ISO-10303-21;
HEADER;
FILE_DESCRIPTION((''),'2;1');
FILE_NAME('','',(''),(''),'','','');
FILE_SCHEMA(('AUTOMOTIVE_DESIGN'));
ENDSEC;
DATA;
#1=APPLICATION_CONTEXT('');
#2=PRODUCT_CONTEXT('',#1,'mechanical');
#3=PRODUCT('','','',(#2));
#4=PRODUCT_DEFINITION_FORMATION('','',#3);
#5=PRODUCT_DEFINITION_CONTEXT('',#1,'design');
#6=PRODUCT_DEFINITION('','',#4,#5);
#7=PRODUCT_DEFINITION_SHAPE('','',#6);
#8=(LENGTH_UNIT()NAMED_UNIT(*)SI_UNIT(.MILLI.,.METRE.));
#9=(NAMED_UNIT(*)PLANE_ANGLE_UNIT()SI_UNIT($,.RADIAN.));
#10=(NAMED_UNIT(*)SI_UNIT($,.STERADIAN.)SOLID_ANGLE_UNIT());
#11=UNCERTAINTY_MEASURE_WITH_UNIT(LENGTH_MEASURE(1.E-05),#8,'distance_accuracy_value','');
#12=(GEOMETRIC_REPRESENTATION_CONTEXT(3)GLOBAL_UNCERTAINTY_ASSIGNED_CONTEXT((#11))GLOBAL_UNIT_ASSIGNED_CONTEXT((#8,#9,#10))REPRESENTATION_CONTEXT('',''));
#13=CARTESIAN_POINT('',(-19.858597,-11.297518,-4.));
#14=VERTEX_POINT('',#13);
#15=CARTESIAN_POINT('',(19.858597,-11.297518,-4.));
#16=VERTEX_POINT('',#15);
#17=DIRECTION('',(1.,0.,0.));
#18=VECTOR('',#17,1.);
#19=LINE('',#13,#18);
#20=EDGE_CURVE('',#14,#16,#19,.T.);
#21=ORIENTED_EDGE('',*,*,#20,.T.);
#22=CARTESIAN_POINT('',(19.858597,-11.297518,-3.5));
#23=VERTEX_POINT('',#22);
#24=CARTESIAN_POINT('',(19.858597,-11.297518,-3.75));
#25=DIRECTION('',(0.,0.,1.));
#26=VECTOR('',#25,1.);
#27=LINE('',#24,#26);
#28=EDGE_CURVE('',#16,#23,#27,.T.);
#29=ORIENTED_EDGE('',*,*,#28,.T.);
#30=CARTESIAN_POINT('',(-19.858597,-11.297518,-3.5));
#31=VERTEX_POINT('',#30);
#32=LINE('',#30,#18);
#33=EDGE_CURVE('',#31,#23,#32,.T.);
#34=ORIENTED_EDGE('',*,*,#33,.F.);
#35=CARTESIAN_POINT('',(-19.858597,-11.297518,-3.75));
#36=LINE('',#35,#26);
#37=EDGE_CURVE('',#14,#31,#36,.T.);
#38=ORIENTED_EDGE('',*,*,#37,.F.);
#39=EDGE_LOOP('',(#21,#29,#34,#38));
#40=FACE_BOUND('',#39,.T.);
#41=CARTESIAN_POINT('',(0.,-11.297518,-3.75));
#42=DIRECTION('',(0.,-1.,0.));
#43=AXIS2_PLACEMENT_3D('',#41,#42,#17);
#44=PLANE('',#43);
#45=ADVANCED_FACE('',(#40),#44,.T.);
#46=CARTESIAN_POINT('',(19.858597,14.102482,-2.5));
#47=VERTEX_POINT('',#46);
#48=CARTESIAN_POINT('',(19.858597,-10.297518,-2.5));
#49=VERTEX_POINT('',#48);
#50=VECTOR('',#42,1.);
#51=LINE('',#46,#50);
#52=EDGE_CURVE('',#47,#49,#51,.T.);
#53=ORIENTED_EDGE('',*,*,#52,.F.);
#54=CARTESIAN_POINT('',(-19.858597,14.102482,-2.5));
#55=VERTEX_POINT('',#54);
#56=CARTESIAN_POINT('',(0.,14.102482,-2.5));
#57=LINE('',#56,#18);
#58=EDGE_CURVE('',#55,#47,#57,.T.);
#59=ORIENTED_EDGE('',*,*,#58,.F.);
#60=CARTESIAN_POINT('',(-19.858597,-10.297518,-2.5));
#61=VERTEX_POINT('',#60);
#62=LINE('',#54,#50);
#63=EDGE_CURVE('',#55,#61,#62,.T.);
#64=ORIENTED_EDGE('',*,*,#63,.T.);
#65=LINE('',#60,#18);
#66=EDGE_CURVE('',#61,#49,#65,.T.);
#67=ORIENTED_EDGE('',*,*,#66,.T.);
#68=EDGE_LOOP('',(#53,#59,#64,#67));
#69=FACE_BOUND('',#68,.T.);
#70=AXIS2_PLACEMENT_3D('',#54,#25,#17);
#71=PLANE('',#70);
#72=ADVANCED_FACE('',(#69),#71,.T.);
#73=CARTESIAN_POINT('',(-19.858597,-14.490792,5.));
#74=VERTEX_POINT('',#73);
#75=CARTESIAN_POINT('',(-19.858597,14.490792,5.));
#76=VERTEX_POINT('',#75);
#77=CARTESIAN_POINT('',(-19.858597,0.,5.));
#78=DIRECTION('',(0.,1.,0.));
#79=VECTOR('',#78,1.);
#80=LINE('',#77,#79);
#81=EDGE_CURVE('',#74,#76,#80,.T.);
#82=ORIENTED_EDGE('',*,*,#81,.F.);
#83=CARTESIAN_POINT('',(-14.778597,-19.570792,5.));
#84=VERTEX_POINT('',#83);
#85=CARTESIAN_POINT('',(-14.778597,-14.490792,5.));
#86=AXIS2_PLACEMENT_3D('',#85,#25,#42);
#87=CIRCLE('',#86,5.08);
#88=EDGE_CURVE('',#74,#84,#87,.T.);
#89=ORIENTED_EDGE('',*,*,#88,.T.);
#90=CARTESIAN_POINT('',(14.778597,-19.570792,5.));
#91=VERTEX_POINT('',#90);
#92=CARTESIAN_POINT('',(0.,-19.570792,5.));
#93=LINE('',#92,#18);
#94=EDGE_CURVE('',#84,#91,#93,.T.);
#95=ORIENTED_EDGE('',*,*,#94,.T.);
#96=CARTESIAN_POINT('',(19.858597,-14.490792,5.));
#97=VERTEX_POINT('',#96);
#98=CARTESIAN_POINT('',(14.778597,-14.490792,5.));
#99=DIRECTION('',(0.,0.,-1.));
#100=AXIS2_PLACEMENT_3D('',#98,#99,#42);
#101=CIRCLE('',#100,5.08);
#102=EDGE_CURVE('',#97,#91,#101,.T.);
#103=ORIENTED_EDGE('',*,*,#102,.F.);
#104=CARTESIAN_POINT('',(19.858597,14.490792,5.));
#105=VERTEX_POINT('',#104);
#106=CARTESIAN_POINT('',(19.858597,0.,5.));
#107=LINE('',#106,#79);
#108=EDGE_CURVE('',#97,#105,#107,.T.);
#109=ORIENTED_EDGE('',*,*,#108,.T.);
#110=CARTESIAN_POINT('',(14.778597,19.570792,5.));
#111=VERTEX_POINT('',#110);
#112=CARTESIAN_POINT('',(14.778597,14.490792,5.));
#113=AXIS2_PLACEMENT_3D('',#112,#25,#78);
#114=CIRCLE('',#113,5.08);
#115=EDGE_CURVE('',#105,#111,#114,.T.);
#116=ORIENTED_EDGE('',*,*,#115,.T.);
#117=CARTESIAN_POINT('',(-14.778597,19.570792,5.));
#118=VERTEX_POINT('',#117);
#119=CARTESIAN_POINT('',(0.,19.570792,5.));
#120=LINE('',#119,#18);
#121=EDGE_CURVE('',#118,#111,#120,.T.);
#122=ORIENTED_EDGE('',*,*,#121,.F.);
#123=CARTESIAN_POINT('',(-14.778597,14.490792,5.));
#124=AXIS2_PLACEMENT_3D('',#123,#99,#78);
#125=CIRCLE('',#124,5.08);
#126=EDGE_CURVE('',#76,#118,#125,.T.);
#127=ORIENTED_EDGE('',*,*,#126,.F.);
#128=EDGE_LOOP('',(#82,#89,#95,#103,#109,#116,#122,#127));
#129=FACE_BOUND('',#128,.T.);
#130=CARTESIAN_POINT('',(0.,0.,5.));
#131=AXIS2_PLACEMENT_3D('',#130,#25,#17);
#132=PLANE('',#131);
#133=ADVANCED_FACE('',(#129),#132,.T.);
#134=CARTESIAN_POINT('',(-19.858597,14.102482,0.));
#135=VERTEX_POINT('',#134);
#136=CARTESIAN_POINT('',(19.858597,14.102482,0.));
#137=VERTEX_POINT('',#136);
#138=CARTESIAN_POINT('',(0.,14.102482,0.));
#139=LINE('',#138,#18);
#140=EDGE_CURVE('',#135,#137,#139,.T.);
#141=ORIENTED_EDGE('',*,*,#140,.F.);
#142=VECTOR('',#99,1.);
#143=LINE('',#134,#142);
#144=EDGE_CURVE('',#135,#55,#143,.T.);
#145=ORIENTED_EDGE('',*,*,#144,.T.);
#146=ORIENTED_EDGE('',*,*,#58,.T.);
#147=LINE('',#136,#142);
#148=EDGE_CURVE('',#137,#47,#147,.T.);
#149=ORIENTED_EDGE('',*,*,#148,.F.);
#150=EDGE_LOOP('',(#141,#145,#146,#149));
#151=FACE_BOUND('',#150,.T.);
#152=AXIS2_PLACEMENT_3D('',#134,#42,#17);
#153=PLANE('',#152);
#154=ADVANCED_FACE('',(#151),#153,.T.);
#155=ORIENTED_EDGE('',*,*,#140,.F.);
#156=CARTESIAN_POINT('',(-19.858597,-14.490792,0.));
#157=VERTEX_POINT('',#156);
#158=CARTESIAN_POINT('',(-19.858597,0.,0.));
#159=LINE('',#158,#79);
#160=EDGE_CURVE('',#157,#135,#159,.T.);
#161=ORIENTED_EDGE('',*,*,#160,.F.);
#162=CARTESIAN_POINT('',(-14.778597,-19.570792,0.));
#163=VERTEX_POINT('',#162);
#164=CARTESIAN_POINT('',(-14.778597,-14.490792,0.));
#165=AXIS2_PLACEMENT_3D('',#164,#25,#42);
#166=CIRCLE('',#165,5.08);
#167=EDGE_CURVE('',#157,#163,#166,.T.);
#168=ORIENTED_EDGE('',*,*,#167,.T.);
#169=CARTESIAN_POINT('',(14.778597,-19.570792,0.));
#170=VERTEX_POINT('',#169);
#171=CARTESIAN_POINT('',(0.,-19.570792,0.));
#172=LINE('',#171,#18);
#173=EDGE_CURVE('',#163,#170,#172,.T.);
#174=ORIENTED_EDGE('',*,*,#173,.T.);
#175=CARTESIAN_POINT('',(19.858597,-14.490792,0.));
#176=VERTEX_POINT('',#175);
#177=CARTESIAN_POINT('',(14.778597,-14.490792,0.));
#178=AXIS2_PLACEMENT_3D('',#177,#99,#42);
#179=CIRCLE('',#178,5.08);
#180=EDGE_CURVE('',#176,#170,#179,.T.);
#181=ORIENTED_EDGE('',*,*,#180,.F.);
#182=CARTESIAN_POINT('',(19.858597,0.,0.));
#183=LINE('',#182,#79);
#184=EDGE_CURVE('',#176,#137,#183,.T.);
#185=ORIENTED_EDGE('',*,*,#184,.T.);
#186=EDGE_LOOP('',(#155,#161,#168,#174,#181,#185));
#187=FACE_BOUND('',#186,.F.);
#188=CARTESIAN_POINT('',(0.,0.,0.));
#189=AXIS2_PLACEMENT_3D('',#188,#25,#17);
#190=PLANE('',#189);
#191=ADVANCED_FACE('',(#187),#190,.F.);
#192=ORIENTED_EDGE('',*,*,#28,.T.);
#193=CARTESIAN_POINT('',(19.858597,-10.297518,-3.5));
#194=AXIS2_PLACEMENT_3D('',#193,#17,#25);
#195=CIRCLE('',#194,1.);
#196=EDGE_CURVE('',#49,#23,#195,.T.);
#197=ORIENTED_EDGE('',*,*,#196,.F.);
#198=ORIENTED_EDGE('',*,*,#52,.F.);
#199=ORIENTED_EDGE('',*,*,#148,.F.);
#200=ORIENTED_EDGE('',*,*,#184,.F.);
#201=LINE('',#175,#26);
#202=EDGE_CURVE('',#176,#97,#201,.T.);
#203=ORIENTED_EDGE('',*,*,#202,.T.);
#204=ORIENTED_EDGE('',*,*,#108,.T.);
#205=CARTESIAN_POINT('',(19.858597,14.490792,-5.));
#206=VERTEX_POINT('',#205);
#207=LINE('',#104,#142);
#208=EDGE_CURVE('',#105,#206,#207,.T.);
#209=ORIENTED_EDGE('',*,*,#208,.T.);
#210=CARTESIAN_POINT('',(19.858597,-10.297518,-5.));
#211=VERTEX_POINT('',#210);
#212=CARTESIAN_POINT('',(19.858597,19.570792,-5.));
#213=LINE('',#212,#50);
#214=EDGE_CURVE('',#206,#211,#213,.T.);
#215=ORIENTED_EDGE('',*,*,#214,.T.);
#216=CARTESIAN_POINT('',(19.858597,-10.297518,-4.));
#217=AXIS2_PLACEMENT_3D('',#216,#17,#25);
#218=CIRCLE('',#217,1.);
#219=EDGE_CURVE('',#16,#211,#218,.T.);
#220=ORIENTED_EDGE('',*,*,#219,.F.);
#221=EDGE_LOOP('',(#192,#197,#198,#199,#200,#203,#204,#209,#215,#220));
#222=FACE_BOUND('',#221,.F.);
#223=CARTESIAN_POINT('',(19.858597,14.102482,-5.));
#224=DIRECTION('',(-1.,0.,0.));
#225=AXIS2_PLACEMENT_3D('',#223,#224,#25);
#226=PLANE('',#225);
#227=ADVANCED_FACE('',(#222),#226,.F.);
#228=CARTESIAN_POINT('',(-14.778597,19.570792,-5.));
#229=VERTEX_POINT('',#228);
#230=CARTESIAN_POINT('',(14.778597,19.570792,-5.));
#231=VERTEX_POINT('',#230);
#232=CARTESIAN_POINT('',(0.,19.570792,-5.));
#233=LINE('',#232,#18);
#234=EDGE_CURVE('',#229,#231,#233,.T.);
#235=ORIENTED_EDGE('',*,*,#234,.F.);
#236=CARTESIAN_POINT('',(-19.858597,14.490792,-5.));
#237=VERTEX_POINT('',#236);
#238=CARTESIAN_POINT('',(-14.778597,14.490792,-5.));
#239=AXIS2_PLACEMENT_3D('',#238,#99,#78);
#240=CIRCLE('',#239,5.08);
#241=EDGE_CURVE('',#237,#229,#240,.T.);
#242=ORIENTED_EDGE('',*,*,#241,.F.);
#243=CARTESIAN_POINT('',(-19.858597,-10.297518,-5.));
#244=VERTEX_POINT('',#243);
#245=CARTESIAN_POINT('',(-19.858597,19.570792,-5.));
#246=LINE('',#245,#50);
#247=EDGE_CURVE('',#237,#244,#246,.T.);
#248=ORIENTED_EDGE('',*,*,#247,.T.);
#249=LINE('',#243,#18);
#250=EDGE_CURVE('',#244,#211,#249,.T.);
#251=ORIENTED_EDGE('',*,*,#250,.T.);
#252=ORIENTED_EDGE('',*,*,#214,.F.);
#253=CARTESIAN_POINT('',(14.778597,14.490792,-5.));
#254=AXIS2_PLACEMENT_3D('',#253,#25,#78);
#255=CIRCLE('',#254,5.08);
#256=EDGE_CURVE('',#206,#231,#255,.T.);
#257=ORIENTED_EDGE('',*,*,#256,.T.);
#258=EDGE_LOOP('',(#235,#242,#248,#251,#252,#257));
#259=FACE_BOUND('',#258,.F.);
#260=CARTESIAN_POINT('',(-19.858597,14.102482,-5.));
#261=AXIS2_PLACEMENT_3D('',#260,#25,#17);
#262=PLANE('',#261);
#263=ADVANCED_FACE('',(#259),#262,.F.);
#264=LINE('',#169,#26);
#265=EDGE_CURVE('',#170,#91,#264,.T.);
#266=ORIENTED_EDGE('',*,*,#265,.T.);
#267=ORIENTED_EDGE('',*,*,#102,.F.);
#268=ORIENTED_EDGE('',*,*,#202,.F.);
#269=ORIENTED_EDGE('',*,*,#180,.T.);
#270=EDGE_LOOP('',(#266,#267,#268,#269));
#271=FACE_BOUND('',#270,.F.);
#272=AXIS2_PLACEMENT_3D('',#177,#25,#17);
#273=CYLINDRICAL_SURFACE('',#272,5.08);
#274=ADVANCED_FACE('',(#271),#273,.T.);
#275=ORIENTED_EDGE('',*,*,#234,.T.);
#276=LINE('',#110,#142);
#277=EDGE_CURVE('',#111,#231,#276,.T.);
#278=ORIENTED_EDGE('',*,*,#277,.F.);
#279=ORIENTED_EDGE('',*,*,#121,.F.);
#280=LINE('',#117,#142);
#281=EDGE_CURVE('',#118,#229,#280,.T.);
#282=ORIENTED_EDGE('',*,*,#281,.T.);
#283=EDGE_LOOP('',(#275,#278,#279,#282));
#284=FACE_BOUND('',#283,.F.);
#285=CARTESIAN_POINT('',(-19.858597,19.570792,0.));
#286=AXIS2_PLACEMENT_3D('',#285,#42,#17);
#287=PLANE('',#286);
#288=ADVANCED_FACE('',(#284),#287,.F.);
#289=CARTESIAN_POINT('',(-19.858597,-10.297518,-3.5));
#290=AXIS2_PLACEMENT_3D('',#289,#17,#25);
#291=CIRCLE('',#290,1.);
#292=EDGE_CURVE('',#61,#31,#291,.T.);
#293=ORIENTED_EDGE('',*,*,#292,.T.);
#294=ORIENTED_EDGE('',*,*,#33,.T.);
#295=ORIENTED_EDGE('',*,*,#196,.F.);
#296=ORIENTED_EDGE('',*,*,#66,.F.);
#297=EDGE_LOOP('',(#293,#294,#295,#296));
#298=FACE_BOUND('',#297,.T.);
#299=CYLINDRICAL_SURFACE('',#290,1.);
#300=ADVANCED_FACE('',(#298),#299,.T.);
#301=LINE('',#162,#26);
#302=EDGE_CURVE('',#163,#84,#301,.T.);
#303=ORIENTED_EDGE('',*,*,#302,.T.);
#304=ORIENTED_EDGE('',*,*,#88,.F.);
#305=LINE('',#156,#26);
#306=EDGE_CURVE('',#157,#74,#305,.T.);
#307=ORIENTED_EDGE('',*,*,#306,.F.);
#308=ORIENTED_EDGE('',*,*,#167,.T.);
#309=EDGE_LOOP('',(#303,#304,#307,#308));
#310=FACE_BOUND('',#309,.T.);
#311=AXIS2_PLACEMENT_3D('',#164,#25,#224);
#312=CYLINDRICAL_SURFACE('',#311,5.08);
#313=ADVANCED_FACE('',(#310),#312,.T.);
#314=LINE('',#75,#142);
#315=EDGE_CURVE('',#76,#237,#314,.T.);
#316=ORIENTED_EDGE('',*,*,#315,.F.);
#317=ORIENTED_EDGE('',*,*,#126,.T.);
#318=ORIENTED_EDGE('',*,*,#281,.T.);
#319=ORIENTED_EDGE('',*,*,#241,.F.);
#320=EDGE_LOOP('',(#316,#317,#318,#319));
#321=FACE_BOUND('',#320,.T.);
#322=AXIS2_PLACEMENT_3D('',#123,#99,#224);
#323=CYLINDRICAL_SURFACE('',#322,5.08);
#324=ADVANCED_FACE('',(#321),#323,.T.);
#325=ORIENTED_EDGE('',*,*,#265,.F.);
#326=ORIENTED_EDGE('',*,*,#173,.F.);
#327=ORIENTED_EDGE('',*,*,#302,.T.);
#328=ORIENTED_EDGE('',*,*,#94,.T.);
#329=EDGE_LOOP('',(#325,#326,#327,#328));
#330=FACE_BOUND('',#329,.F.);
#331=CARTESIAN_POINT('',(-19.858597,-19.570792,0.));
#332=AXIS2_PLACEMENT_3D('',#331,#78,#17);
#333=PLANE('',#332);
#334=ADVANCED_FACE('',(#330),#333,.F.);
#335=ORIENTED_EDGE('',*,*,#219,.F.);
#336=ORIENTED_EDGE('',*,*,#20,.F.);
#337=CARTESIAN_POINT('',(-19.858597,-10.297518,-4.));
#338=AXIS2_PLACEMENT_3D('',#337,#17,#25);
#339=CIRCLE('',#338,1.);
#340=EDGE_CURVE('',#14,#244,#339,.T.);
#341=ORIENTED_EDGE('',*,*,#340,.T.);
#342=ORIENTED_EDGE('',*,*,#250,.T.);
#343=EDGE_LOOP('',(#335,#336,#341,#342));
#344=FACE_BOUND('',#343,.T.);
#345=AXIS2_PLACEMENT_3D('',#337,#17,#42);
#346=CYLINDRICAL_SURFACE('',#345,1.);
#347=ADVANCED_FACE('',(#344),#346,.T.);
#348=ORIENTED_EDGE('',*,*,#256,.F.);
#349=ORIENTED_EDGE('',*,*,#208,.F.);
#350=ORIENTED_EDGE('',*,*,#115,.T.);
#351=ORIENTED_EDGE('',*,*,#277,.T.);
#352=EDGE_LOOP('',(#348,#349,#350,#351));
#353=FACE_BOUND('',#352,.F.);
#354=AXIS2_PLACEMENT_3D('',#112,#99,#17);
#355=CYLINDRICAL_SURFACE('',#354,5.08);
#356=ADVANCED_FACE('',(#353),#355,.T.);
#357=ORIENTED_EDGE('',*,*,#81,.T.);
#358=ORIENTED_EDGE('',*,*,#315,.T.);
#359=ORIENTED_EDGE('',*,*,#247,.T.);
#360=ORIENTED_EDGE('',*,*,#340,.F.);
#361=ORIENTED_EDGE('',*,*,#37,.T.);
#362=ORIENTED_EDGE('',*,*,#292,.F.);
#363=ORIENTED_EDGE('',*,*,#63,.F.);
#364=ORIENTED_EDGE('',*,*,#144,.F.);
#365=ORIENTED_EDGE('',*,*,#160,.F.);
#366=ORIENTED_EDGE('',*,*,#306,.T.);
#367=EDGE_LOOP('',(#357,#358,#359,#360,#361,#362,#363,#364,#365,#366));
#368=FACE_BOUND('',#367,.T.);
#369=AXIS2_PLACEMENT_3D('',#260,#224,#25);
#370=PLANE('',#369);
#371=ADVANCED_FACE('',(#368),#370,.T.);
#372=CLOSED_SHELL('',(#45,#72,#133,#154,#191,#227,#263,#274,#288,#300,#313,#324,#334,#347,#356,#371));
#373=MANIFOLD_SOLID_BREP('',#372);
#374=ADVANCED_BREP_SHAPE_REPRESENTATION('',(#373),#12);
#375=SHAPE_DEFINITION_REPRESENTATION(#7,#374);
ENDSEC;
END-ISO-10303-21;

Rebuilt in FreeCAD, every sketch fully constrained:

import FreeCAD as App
import Part
import Sketcher


def edges_at(feature, points):
    """Names of the edges that pass closest to the given points."""
    edges = feature.Shape.Edges
    near = lambda p: min(range(len(edges)), key=lambda i: edges[i].distToShape(Part.Vertex(*p))[0])
    return sorted({f"Edge{near(p) + 1}" for p in points})

doc = App.newDocument("Part")
body = doc.addObject("PartDesign::Body", "Body")

# Sketch on XY plane
sketch1 = body.newObject("Sketcher::SketchObject", "Sketch")
sketch1.AttachmentSupport = (doc.getObject("XY_Plane"), [""])
sketch1.MapMode = "FlatFace"
sketch1.addGeometry([
    Part.LineSegment(App.Vector(-20, 20, 0), App.Vector(-20, -20, 0)),
    Part.LineSegment(App.Vector(-20, -20, 0), App.Vector(20, -20, 0)),
    Part.LineSegment(App.Vector(20, -20, 0), App.Vector(20, 20, 0)),
    Part.LineSegment(App.Vector(20, 20, 0), App.Vector(-20, 20, 0)),
], False)
sketch1.addConstraint([
    Sketcher.Constraint("Coincident", 0, 2, 1, 1),
    Sketcher.Constraint("Coincident", 1, 2, 2, 1),
    Sketcher.Constraint("Coincident", 2, 2, 3, 1),
    Sketcher.Constraint("Coincident", 3, 2, 0, 1),
    Sketcher.Constraint("Vertical", 0),
    Sketcher.Constraint("Horizontal", 1),
    Sketcher.Constraint("Vertical", 2),
    Sketcher.Constraint("Horizontal", 3),
    Sketcher.Constraint("Symmetric", 0, 2, 2, 2, -1, 1),
    Sketcher.Constraint("DistanceX", 1, 1, 1, 2, 39.717194),
    Sketcher.Constraint("DistanceY", 0, 2, 0, 1, 39.141584),
])
pad1 = body.newObject("PartDesign::Pad", "Pad")
pad1.Profile = sketch1
pad1.Length = 5

# Sketch on XY plane
sketch2 = body.newObject("Sketcher::SketchObject", "Sketch001")
sketch2.AttachmentSupport = (doc.getObject("XY_Plane"), [""])
sketch2.MapMode = "FlatFace"
sketch2.addGeometry([
    Part.LineSegment(App.Vector(-20, 14, 0), App.Vector(-20, 20, 0)),
    Part.LineSegment(App.Vector(-20, 20, 0), App.Vector(20, 20, 0)),
    Part.LineSegment(App.Vector(20, 20, 0), App.Vector(20, 14, 0)),
    Part.LineSegment(App.Vector(20, 14, 0), App.Vector(-20, 14, 0)),
], False)
sketch2.addConstraint([
    Sketcher.Constraint("Coincident", 0, 2, 1, 1),
    Sketcher.Constraint("Coincident", 1, 2, 2, 1),
    Sketcher.Constraint("Coincident", 2, 2, 3, 1),
    Sketcher.Constraint("Coincident", 3, 2, 0, 1),
    Sketcher.Constraint("Vertical", 0),
    Sketcher.Constraint("Horizontal", 1),
    Sketcher.Constraint("Vertical", 2),
    Sketcher.Constraint("Horizontal", 3),
    Sketcher.Constraint("DistanceY", 0, 1, 0, 2, 5.46831),
    Sketcher.Constraint("DistanceX", 1, 1, 1, 2, 39.717194),
    Sketcher.Constraint("DistanceX", 0, 2, -1, 1, 19.858597),
    Sketcher.Constraint("DistanceY", -1, 1, 0, 2, 19.570792),
])
pad2 = body.newObject("PartDesign::Pad", "Pad001")
pad2.Profile = sketch2
pad2.Length = 5
pad2.Reversed = True

# Sketch on XZ plane
sketch3 = body.newObject("Sketcher::SketchObject", "Sketch002")
sketch3.AttachmentSupport = (doc.getObject("XZ_Plane"), [""])
sketch3.MapMode = "FlatFace"
sketch3.AttachmentOffset = App.Placement(App.Vector(0, 0, -14.102482), App.Rotation())
sketch3.addGeometry([
    Part.LineSegment(App.Vector(-19.9, -2.5, 0), App.Vector(-19.9, -5, 0)),
    Part.LineSegment(App.Vector(-19.9, -5, 0), App.Vector(19.9, -5, 0)),
    Part.LineSegment(App.Vector(19.9, -5, 0), App.Vector(19.9, -2.5, 0)),
    Part.LineSegment(App.Vector(19.9, -2.5, 0), App.Vector(-19.9, -2.5, 0)),
], False)
sketch3.addConstraint([
    Sketcher.Constraint("Coincident", 0, 2, 1, 1),
    Sketcher.Constraint("Coincident", 1, 2, 2, 1),
    Sketcher.Constraint("Coincident", 2, 2, 3, 1),
    Sketcher.Constraint("Coincident", 3, 2, 0, 1),
    Sketcher.Constraint("Vertical", 0),
    Sketcher.Constraint("Horizontal", 1),
    Sketcher.Constraint("Vertical", 2),
    Sketcher.Constraint("Horizontal", 3),
    Sketcher.Constraint("DistanceY", 0, 2, 0, 1, 2.5),
    Sketcher.Constraint("DistanceY", 0, 2, -1, 1, 5.0),
    Sketcher.Constraint("DistanceX", 1, 1, 1, 2, 39.717194),
    Sketcher.Constraint("DistanceX", 0, 2, -1, 1, 19.858597),
])
pad3 = body.newObject("PartDesign::Pad", "Pad002")
pad3.Profile = sketch3
pad3.Length = 25.4
doc.recompute()

fillet = body.newObject("PartDesign::Fillet", "Fillet")
fillet.Base = (pad3, edges_at(pad3, [
    (19.859, 19.571, 0),
    (19.859, -19.571, 2.5),
    (-19.859, 19.571, 0),
    (-19.859, -19.571, 2.5),
]))
fillet.Radius = 5.08
doc.recompute()

fillet2 = body.newObject("PartDesign::Fillet", "Fillet001")
fillet2.Base = (fillet, edges_at(fillet, [(0, -11.298, -5), (0, -11.298, -2.5)]))
fillet2.Radius = 1

doc.recompute()
